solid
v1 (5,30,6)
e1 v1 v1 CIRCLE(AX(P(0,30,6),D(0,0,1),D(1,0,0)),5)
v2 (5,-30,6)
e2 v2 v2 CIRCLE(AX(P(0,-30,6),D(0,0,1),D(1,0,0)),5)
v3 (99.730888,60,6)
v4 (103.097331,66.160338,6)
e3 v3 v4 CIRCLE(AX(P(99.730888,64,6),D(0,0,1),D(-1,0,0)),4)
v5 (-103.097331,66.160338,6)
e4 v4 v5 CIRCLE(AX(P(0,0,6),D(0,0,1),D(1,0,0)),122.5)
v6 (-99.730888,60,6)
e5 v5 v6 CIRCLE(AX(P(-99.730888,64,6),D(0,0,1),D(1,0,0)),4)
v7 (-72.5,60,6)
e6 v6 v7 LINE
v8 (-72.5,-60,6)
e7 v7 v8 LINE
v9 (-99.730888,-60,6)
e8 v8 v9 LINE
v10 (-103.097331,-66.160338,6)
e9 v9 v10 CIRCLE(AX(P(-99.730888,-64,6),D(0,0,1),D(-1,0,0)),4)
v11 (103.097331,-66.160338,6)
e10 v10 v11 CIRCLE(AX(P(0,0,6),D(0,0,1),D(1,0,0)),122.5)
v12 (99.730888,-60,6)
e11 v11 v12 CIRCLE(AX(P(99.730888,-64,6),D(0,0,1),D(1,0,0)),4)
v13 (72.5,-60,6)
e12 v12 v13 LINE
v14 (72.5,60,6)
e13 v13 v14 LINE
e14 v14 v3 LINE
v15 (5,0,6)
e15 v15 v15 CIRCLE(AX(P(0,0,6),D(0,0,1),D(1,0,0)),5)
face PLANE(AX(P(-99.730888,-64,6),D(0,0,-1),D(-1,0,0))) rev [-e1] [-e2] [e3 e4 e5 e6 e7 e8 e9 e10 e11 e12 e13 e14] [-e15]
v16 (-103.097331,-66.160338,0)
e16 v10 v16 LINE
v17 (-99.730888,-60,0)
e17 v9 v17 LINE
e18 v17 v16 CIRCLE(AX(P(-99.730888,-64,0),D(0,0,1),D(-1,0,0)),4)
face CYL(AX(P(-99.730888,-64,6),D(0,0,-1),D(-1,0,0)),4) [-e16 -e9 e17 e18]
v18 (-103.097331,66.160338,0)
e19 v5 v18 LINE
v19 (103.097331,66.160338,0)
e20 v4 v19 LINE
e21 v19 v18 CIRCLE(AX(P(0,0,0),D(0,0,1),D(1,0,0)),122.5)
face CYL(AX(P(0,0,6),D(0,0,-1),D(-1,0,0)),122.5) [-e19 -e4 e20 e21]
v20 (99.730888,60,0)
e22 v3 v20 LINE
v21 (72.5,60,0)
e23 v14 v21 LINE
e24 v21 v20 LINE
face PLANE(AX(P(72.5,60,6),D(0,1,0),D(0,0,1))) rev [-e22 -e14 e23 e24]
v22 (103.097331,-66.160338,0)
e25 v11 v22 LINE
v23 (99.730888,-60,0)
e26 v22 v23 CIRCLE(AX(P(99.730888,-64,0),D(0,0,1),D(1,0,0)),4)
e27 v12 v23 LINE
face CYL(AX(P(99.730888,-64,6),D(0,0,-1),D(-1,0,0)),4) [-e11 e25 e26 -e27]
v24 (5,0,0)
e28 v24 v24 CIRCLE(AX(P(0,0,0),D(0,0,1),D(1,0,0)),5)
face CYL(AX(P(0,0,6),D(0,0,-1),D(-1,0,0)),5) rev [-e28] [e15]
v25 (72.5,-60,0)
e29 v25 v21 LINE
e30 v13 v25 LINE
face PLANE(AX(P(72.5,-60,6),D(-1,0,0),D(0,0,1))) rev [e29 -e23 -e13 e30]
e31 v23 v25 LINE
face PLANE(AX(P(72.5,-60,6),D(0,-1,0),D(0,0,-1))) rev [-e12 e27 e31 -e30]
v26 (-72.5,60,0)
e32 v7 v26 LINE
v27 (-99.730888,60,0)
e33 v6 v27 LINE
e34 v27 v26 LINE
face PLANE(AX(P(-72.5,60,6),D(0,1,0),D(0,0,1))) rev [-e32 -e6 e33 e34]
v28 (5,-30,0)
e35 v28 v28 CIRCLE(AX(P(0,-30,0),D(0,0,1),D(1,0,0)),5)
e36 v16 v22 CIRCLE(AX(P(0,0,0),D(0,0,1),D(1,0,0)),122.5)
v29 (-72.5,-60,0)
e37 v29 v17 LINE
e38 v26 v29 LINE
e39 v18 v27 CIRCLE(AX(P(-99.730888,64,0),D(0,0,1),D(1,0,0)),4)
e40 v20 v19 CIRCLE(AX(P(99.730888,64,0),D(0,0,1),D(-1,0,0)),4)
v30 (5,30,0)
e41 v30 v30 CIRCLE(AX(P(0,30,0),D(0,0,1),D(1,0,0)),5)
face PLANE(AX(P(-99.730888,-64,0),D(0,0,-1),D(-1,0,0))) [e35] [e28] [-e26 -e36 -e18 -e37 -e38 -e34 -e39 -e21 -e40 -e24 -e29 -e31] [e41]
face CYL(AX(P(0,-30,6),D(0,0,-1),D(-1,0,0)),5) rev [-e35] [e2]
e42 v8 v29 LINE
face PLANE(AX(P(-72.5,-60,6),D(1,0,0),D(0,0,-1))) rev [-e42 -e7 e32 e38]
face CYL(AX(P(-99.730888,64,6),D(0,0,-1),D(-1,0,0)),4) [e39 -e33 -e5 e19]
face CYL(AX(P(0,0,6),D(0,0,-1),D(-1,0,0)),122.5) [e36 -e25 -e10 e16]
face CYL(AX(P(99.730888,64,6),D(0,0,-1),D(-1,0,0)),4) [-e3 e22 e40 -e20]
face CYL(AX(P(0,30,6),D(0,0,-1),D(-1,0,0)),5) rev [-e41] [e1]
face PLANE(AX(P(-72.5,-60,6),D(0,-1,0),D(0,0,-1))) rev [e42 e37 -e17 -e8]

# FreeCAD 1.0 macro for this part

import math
import FreeCAD as App
import Part
import Sketcher

V = App.Vector
Q = App.Units.Quantity

doc = App.newDocument("Part")
body = doc.addObject("PartDesign::Body", "Body")

sketch1 = doc.addObject("Sketcher::SketchObject", "Sketch")
body.addObject(sketch1)
sketch1.AttachmentSupport = (doc.XY_Plane, [""])
sketch1.MapMode = "FlatFace"
sketch1.addGeometry([
    Part.LineSegment(V(-99.7, 60, 0), V(-72.5, 60, 0)),
    Part.LineSegment(V(-72.5, 60, 0), V(-72.5, -60, 0)),
    Part.LineSegment(V(-72.5, -60, 0), V(-99.7, -60, 0)),
    Part.ArcOfCircle(Part.Circle(V(-99.7, -64, 0), V(0, 0, 1), 4), math.radians(90), math.radians(213)),
    Part.ArcOfCircle(Part.Circle(V(0, 0, 0), V(0, 0, 1), 122.5), math.radians(-147), math.radians(-33)),
    Part.ArcOfCircle(Part.Circle(V(99.7, -64, 0), V(0, 0, 1), 4), math.radians(-33), math.radians(90)),
    Part.LineSegment(V(99.7, -60, 0), V(72.5, -60, 0)),
    Part.LineSegment(V(72.5, -60, 0), V(72.5, 60, 0)),
    Part.LineSegment(V(72.5, 60, 0), V(99.7, 60, 0)),
    Part.ArcOfCircle(Part.Circle(V(99.7, 64, 0), V(0, 0, 1), 4), math.radians(-90), math.radians(33)),
    Part.ArcOfCircle(Part.Circle(V(0, 0, 0), V(0, 0, 1), 122.5), math.radians(33), math.radians(147)),
    Part.ArcOfCircle(Part.Circle(V(-99.7, 64, 0), V(0, 0, 1), 4), math.radians(147), math.radians(270)),
    Part.Circle(V(0, -30, 0), V(0, 0, 1), 5),
    Part.Circle(V(0, 0, 0), V(0, 0, 1), 5),
    Part.Circle(V(0, 30, 0), V(0, 0, 1), 5),
], False)
sketch1.addConstraint([
    Sketcher.Constraint("Coincident", 0, 2, 1, 1),
    Sketcher.Constraint("Coincident", 1, 2, 2, 1),
    Sketcher.Constraint("Tangent", 2, 2, 3, 1),
    Sketcher.Constraint("Tangent", 3, 2, 4, 1),
    Sketcher.Constraint("Tangent", 4, 2, 5, 1),
    Sketcher.Constraint("Tangent", 5, 2, 6, 1),
    Sketcher.Constraint("Coincident", 6, 2, 7, 1),
    Sketcher.Constraint("Coincident", 7, 2, 8, 1),
    Sketcher.Constraint("Tangent", 8, 2, 9, 1),
    Sketcher.Constraint("Tangent", 9, 2, 10, 1),
    Sketcher.Constraint("Tangent", 10, 2, 11, 1),
    Sketcher.Constraint("Tangent", 11, 2, 0, 1),
    Sketcher.Constraint("Horizontal", 0),
    Sketcher.Constraint("Vertical", 1),
    Sketcher.Constraint("Horizontal", 2),
    Sketcher.Constraint("Horizontal", 6),
    Sketcher.Constraint("Vertical", 7),
    Sketcher.Constraint("Horizontal", 8),
    Sketcher.Constraint("Coincident", 4, 3, -1, 1),
    Sketcher.Constraint("Coincident", 10, 3, -1, 1),
    Sketcher.Constraint("Coincident", 13, 3, -1, 1),
    Sketcher.Constraint("Equal", 3, 5),
    Sketcher.Constraint("Equal", 5, 9),
    Sketcher.Constraint("Equal", 4, 10),
    Sketcher.Constraint("Equal", 9, 11),
    Sketcher.Constraint("Equal", 12, 13),
    Sketcher.Constraint("Equal", 13, 14),
    Sketcher.Constraint("Symmetric", 12, 3, 14, 3, -1, 1),
    Sketcher.Constraint("Symmetric", 0, 2, 6, 2, -1, 1),
    Sketcher.Constraint("PointOnObject", 12, 3, -2),
    Sketcher.Constraint("Horizontal", 3, 3, 5, 3),
    Sketcher.Constraint("Horizontal", 9, 3, 11, 3),
    Sketcher.Constraint("Diameter", 12, Q("10 mm")),
    Sketcher.Constraint("Radius", 3, Q("4 mm")),
    Sketcher.Constraint("Radius", 4, Q("122.5 mm")),
    Sketcher.Constraint("DistanceY", 1, 2, 1, 1, Q("120 mm")),
    Sketcher.Constraint("DistanceY", 12, 3, -1, 1, Q("30 mm")),
    Sketcher.Constraint("DistanceX", 0, 2, -1, 1, Q("72.5 mm")),
])
pad1 = doc.addObject("PartDesign::Pad", "Pad")
body.addObject(pad1)
pad1.Profile = sketch1
pad1.Length = 6

doc.recompute()
